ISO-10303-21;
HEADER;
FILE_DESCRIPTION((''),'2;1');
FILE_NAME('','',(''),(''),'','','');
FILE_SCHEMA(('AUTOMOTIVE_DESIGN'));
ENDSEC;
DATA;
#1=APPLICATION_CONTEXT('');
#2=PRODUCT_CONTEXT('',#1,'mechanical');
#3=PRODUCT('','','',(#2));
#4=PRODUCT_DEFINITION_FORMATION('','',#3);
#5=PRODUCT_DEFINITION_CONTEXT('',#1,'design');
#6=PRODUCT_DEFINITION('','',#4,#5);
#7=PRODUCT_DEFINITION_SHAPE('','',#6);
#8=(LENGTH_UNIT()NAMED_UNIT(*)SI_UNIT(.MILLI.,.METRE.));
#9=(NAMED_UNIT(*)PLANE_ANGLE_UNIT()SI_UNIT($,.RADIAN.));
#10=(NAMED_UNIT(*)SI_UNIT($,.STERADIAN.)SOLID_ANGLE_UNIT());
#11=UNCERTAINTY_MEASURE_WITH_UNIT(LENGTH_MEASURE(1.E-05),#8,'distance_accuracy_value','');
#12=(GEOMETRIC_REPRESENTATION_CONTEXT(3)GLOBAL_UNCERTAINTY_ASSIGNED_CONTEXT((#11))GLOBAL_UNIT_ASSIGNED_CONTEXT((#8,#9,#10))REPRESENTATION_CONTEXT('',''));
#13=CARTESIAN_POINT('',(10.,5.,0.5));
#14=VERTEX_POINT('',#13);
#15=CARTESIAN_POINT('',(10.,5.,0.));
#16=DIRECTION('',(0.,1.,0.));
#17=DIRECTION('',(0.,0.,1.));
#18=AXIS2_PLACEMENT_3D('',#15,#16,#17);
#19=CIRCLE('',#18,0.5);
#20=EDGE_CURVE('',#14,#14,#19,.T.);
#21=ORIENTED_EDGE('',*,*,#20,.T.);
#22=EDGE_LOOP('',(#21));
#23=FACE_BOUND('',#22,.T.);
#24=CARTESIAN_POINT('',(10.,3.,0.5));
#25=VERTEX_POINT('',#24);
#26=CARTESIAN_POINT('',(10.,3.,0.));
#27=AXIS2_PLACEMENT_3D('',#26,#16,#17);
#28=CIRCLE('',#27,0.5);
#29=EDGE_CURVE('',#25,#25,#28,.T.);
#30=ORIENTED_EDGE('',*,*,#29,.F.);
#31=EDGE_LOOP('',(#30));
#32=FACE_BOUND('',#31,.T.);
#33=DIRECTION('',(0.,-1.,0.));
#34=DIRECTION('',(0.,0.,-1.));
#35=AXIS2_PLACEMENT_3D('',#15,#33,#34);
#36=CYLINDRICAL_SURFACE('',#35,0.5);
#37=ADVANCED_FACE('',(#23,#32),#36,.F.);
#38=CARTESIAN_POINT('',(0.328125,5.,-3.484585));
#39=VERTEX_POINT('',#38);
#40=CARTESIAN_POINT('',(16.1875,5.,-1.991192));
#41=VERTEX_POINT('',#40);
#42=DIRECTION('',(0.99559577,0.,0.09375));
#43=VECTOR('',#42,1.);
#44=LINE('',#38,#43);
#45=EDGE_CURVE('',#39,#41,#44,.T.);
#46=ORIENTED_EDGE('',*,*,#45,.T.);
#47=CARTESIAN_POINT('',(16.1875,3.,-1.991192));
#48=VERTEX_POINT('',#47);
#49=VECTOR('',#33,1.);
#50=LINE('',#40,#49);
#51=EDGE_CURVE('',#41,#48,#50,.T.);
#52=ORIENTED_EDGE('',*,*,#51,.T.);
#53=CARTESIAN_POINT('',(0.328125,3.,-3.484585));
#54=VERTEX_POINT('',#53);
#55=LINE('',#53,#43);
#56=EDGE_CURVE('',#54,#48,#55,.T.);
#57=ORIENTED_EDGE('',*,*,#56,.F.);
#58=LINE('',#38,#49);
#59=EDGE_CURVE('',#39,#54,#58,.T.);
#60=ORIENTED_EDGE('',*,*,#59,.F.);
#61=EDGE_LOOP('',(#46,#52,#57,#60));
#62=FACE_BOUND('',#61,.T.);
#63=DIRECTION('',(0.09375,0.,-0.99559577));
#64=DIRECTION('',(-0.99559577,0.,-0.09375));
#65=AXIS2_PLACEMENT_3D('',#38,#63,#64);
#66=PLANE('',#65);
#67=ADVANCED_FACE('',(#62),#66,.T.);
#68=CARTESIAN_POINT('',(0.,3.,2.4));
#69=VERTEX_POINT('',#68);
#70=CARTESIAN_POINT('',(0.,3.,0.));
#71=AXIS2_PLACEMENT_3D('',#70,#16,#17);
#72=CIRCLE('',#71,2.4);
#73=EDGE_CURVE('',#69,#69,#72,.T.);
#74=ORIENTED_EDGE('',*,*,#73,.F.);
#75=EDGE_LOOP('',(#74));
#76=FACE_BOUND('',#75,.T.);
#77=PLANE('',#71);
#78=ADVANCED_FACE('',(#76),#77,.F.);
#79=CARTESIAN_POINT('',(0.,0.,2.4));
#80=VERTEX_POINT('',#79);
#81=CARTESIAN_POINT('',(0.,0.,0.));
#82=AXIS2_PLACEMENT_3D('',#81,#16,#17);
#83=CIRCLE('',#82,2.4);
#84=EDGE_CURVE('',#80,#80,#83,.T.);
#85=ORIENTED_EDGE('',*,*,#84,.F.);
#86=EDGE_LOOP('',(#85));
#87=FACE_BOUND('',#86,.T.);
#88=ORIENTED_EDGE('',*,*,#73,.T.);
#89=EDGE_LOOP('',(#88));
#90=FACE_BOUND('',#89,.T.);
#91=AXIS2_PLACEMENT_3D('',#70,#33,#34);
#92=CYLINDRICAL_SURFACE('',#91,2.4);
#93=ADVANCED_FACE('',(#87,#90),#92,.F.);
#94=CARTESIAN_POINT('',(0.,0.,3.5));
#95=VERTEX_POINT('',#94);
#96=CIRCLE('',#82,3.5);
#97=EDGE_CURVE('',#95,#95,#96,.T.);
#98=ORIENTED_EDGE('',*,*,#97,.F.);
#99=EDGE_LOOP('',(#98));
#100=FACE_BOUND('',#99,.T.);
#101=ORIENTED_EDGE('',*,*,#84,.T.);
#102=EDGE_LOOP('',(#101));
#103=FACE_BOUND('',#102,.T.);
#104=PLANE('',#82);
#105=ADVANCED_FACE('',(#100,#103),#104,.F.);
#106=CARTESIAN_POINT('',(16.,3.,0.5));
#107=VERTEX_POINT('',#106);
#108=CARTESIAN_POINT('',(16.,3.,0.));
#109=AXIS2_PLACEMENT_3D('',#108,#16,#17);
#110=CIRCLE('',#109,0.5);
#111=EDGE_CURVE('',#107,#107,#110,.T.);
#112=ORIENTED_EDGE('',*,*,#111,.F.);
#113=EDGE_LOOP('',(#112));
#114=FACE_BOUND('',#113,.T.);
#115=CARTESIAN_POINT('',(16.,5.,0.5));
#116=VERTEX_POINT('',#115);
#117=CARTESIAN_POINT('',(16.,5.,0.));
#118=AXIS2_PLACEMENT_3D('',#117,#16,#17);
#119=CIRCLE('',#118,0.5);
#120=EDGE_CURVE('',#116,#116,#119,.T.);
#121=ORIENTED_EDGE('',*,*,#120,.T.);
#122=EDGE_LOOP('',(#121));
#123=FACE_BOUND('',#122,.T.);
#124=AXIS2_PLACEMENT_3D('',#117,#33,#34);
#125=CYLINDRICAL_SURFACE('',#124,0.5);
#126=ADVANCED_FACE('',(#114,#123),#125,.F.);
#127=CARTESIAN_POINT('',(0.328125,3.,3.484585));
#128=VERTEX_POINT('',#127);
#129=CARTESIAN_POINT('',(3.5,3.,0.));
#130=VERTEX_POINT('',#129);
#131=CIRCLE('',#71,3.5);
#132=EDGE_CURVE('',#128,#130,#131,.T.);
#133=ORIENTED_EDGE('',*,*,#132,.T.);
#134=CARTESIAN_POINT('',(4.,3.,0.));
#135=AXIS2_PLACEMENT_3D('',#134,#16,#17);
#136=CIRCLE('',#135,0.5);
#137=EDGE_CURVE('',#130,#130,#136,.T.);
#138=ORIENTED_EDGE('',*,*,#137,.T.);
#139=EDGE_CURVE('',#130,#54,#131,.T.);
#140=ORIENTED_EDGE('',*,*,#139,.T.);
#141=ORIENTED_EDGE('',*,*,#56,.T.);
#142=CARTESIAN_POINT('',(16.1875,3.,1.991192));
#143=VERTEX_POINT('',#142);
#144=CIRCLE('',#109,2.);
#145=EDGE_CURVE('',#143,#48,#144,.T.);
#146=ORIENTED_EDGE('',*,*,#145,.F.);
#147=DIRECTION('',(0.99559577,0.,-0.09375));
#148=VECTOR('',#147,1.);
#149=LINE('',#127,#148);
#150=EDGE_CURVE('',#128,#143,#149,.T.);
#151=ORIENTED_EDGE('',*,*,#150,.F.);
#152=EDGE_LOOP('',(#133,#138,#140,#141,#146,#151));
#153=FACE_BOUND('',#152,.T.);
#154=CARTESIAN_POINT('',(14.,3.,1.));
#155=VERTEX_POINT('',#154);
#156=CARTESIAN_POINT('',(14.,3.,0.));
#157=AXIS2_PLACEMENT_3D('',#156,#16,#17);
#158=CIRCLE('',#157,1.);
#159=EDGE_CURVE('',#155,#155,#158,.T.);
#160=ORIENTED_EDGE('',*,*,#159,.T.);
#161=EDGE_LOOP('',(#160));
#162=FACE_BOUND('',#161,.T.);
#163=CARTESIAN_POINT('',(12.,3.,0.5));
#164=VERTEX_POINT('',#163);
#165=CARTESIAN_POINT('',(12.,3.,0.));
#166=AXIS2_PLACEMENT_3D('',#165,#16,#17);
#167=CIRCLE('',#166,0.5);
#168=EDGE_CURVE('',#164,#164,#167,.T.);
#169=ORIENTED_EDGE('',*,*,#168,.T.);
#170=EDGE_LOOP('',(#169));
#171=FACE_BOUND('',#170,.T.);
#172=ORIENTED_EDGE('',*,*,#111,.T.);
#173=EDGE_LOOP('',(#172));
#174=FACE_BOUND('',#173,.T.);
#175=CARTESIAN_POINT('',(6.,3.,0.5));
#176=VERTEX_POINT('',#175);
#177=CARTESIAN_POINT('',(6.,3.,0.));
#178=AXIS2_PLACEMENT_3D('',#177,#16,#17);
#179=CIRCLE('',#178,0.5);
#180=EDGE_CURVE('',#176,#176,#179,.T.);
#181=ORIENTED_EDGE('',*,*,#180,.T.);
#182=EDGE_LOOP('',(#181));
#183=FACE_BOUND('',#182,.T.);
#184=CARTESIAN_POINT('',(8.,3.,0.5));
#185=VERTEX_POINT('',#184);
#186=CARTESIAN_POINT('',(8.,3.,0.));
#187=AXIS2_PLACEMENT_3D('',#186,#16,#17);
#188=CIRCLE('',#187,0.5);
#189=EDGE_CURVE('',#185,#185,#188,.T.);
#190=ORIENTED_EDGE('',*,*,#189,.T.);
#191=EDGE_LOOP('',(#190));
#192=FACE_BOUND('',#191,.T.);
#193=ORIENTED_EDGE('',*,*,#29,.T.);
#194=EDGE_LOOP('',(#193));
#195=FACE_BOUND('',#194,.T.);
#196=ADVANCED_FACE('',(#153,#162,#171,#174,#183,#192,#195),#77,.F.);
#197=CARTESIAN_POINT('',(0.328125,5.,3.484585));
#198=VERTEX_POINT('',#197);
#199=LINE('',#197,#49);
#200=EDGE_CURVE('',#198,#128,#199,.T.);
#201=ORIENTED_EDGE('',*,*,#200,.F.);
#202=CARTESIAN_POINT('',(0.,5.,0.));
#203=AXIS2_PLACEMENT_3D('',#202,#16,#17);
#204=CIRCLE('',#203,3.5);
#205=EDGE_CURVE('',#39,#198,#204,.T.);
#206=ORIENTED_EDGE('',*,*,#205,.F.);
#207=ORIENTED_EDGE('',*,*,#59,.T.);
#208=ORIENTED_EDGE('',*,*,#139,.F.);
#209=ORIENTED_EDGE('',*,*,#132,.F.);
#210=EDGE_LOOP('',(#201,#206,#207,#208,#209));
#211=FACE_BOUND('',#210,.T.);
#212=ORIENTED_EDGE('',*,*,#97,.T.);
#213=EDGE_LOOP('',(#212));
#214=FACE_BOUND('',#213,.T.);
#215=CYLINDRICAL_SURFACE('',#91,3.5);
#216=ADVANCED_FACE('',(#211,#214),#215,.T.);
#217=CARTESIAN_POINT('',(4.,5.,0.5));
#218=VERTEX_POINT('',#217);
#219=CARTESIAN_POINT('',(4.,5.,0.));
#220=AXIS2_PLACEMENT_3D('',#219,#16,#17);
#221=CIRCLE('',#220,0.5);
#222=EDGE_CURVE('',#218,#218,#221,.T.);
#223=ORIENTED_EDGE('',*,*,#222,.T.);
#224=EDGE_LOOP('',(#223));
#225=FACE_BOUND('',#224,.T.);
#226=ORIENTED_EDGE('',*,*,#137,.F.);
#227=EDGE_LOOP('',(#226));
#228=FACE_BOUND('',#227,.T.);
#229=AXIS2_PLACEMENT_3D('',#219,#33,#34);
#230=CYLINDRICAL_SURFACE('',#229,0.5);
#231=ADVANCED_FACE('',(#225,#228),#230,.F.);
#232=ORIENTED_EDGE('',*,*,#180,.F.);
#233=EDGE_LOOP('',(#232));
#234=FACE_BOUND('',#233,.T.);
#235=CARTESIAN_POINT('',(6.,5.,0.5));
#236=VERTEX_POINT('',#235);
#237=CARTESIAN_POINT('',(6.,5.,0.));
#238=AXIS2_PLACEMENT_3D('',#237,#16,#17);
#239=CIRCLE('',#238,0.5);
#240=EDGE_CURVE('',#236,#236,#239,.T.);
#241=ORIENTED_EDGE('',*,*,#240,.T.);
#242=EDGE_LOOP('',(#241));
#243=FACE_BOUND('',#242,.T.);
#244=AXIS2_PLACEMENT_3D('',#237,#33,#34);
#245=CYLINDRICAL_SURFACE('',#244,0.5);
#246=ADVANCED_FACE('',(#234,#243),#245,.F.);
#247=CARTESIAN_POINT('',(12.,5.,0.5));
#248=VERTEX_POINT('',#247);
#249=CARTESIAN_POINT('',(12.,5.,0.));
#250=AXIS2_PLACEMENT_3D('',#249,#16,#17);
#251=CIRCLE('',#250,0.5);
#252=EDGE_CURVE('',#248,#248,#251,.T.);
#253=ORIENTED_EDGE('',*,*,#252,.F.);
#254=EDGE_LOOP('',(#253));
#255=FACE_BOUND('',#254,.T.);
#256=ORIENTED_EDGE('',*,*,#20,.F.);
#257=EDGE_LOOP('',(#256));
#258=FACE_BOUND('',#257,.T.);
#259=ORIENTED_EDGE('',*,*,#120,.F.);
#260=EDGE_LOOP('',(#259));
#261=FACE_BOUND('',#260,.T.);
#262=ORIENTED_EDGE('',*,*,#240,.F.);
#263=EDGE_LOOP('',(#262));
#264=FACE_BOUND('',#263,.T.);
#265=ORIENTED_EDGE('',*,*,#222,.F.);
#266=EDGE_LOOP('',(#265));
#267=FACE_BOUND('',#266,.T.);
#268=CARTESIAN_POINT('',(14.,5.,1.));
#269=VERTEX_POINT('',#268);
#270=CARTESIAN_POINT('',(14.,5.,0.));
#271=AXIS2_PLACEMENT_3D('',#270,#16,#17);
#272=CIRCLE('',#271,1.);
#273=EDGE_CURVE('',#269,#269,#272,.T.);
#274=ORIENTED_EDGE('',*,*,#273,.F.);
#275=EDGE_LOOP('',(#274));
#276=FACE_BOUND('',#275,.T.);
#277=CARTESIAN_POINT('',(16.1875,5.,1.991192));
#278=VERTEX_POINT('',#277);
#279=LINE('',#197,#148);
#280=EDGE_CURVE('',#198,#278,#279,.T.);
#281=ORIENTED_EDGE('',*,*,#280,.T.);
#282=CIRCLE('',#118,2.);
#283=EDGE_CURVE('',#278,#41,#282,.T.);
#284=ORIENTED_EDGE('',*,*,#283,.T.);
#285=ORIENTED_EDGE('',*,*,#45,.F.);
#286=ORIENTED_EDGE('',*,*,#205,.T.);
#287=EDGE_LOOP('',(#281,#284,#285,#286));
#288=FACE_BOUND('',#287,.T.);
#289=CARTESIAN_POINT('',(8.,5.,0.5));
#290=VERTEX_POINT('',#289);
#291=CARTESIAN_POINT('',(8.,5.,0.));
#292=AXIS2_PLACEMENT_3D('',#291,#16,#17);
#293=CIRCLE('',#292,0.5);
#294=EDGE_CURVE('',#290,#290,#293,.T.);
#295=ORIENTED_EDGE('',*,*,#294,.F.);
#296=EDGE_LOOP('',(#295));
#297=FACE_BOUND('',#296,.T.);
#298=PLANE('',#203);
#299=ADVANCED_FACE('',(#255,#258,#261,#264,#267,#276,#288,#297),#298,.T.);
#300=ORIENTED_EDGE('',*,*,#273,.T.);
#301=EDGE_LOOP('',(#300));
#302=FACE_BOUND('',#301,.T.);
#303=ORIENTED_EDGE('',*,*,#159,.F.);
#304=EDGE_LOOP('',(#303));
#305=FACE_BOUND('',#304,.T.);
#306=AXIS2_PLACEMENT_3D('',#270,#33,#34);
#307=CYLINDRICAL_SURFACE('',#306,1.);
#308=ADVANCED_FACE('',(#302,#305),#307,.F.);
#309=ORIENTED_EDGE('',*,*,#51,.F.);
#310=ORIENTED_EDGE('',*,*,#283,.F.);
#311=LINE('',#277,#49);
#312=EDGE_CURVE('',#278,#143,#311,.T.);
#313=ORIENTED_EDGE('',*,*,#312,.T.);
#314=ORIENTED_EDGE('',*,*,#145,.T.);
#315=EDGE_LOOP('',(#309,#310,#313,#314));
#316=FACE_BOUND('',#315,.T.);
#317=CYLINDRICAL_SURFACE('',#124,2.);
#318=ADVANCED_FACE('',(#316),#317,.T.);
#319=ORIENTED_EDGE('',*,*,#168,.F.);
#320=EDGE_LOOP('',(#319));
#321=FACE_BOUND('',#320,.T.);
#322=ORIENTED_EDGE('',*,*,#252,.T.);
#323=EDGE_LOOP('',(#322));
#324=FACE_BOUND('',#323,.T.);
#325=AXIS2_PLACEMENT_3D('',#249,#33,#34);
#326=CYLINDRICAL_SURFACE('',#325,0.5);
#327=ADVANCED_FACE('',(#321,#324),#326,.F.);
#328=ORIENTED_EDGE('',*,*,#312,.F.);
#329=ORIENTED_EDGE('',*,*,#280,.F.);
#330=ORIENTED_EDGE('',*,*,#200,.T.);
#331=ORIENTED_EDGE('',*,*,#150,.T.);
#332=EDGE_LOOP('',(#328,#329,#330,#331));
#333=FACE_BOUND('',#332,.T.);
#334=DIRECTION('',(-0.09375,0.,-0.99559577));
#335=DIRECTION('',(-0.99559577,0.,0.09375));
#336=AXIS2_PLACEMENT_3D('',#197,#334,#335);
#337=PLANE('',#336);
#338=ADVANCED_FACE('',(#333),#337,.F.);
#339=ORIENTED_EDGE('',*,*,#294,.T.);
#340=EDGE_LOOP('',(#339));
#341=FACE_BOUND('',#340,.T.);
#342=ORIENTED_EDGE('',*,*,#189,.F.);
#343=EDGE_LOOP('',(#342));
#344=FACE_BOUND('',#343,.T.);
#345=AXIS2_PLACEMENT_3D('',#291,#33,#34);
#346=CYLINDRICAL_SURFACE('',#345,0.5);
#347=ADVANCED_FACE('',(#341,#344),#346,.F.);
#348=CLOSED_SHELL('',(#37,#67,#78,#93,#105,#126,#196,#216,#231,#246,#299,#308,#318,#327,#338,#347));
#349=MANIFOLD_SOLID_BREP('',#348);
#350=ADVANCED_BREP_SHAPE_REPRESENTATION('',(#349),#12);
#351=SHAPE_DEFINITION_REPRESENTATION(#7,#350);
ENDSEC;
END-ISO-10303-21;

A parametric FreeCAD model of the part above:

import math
import FreeCAD as App
import Part
import Sketcher

V = App.Vector
Q = App.Units.Quantity

doc = App.newDocument("Part")
body = doc.addObject("PartDesign::Body", "Body")

# Sketch on XZ plane
sketch1 = body.newObject("Sketcher::SketchObject", "Sketch")
sketch1.AttachmentSupport = (doc.getObject("XZ_Plane"), [""])
sketch1.MapMode = "FlatFace"
sketch1.addGeometry(Part.Circle(V(0, 0, 0), V(0, 0, 1), 3.5), False)
sketch1.addGeometry(Part.Circle(V(0, 0, 0), V(0, 0, 1), 2.4), False)
sketch1.addConstraint(Sketcher.Constraint("Coincident", 0, 3, -1, 1))
sketch1.addConstraint(Sketcher.Constraint("Coincident", 1, 3, -1, 1))
sketch1.addConstraint(Sketcher.Constraint("Diameter", 0, Q("7 mm")))
sketch1.addConstraint(Sketcher.Constraint("Diameter", 1, Q("4.8 mm")))
pad1 = body.newObject("PartDesign::Pad", "Pad")
pad1.Profile = sketch1
pad1.Length = 3
pad1.Reversed = True

# Sketch on XZ plane
sketch2 = body.newObject("Sketcher::SketchObject", "Sketch001")
sketch2.AttachmentSupport = (doc.getObject("XZ_Plane"), [""])
sketch2.MapMode = "FlatFace"
sketch2.AttachmentOffset = App.Placement(V(0, 0, -3), App.Rotation())
sketch2.addGeometry(Part.LineSegment(V(16.2, -2, 0), V(0.3, -3.5, 0)), False)
sketch2.addGeometry(Part.ArcOfCircle(Part.Circle(V(0, 0, 0), V(0, 0, 1), 3.5), math.radians(85), math.radians(275)), False)
sketch2.addGeometry(Part.LineSegment(V(0.3, 3.5, 0), V(16.2, 2, 0)), False)
sketch2.addGeometry(Part.ArcOfCircle(Part.Circle(V(16, 0, 0), V(0, 0, 1), 2), math.radians(-85), math.radians(85)), False)
sketch2.addGeometry(Part.Circle(V(4, 0, 0), V(0, 0, 1), 0.5), False)
sketch2.addGeometry(Part.Circle(V(6, 0, 0), V(0, 0, 1), 0.5), False)
sketch2.addGeometry(Part.Circle(V(8, 0, 0), V(0, 0, 1), 0.5), False)
sketch2.addGeometry(Part.Circle(V(10, 0, 0), V(0, 0, 1), 0.5), False)
sketch2.addGeometry(Part.Circle(V(12, 0, 0), V(0, 0, 1), 0.5), False)
sketch2.addGeometry(Part.Circle(V(14, 0, 0), V(0, 0, 1), 1), False)
sketch2.addGeometry(Part.Circle(V(16, 0, 0), V(0, 0, 1), 0.5), False)
sketch2.addConstraint(Sketcher.Constraint("Tangent", 0, 2, 1, 2))
sketch2.addConstraint(Sketcher.Constraint("Tangent", 1, 1, 2, 1))
sketch2.addConstraint(Sketcher.Constraint("Tangent", 2, 2, 3, 2))
sketch2.addConstraint(Sketcher.Constraint("Tangent", 3, 1, 0, 1))
sketch2.addConstraint(Sketcher.Constraint("Coincident", 1, 3, -1, 1))
sketch2.addConstraint(Sketcher.Constraint("Coincident", 10, 3, 3, 3))
sketch2.addConstraint(Sketcher.Constraint("Equal", 4, 5))
sketch2.addConstraint(Sketcher.Constraint("Equal", 5, 6))
sketch2.addConstraint(Sketcher.Constraint("Equal", 6, 7))
sketch2.addConstraint(Sketcher.Constraint("Equal", 7, 8))
sketch2.addConstraint(Sketcher.Constraint("Equal", 8, 10))
sketch2.addConstraint(Sketcher.Constraint("PointOnObject", 3, 3, -1))
sketch2.addConstraint(Sketcher.Constraint("PointOnObject", 4, 3, -1))
sketch2.addConstraint(Sketcher.Constraint("PointOnObject", 5, 3, -1))
sketch2.addConstraint(Sketcher.Constraint("PointOnObject", 6, 3, -1))
sketch2.addConstraint(Sketcher.Constraint("PointOnObject", 7, 3, -1))
sketch2.addConstraint(Sketcher.Constraint("PointOnObject", 8, 3, -1))
sketch2.addConstraint(Sketcher.Constraint("PointOnObject", 9, 3, -1))
sketch2.addConstraint(Sketcher.Constraint("Diameter", 4, Q("1 mm")))
sketch2.addConstraint(Sketcher.Constraint("Diameter", 9, Q("2 mm")))
sketch2.addConstraint(Sketcher.Constraint("Radius", 3, Q("2 mm")))
sketch2.addConstraint(Sketcher.Constraint("Radius", 1, Q("3.5 mm")))
sketch2.addConstraint(Sketcher.Constraint("DistanceX", -1, 1, 3, 3, Q("16 mm")))
sketch2.addConstraint(Sketcher.Constraint("DistanceX", -1, 1, 4, 3, Q("4 mm")))
sketch2.addConstraint(Sketcher.Constraint("DistanceX", -1, 1, 5, 3, Q("6 mm")))
sketch2.addConstraint(Sketcher.Constraint("DistanceX", -1, 1, 6, 3, Q("8 mm")))
sketch2.addConstraint(Sketcher.Constraint("DistanceX", -1, 1, 7, 3, Q("10 mm")))
sketch2.addConstraint(Sketcher.Constraint("DistanceX", -1, 1, 8, 3, Q("12 mm")))
sketch2.addConstraint(Sketcher.Constraint("DistanceX", -1, 1, 9, 3, Q("14 mm")))
pad2 = body.newObject("PartDesign::Pad", "Pad001")
pad2.Profile = sketch2
pad2.Length = 2
pad2.Reversed = True

doc.recompute()
